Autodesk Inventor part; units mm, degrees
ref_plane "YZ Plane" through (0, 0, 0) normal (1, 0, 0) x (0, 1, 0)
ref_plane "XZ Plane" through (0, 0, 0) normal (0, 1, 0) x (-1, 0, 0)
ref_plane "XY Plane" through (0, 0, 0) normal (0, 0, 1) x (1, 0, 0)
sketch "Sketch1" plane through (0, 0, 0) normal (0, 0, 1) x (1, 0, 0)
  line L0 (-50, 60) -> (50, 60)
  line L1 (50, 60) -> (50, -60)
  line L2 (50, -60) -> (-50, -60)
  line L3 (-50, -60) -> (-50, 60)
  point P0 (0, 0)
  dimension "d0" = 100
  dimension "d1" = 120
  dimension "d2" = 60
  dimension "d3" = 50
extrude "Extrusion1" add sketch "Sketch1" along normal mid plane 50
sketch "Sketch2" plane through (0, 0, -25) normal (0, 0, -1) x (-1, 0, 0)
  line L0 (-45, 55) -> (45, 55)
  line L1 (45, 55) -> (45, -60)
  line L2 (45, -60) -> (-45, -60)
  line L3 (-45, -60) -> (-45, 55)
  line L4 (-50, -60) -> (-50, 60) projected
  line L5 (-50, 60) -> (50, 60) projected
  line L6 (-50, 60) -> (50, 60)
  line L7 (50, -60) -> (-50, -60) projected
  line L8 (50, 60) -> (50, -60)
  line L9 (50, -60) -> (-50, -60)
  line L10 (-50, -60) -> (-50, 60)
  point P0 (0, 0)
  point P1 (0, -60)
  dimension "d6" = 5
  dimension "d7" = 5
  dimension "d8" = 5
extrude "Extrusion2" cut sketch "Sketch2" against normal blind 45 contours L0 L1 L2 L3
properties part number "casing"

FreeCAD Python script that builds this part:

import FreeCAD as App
import Part
import Sketcher

V = App.Vector
Q = App.Units.Quantity

doc = App.newDocument("Part")
body = doc.addObject("PartDesign::Body", "Body")

sketch1 = doc.addObject("Sketcher::SketchObject", "Sketch")
body.addObject(sketch1)
sketch1.AttachmentSupport = (doc.XY_Plane, [""])
sketch1.MapMode = "FlatFace"
sketch1.addGeometry([
    Part.LineSegment(V(50, 60, 0), V(-50, 60, 0)),
    Part.LineSegment(V(-50, 60, 0), V(-50, -60, 0)),
    Part.LineSegment(V(-50, -60, 0), V(50, -60, 0)),
    Part.LineSegment(V(50, -60, 0), V(50, 60, 0)),
], False)
sketch1.addConstraint([
    Sketcher.Constraint("Coincident", 0, 2, 1, 1),
    Sketcher.Constraint("Coincident", 1, 2, 2, 1),
    Sketcher.Constraint("Coincident", 2, 2, 3, 1),
    Sketcher.Constraint("Coincident", 3, 2, 0, 1),
    Sketcher.Constraint("Horizontal", 0),
    Sketcher.Constraint("Vertical", 1),
    Sketcher.Constraint("Horizontal", 2),
    Sketcher.Constraint("Vertical", 3),
    Sketcher.Constraint("Symmetric", 0, 2, 2, 2, -1, 1),
    Sketcher.Constraint("DistanceX", 0, 2, 0, 1, Q("100 mm")),
    Sketcher.Constraint("DistanceY", 1, 2, 1, 1, Q("120 mm")),
])
pad1 = doc.addObject("PartDesign::Pad", "Pad")
body.addObject(pad1)
pad1.Profile = sketch1
pad1.Length = 50
pad1.Midplane = True

sketch2 = doc.addObject("Sketcher::SketchObject", "Sketch001")
body.addObject(sketch2)
sketch2.AttachmentSupport = (doc.XY_Plane, [""])
sketch2.MapMode = "FlatFace"
sketch2.AttachmentOffset = App.Placement(V(0, 0, -25), App.Rotation())
sketch2.addGeometry([
    Part.LineSegment(V(-45, 55, 0), V(45, 55, 0)),
    Part.LineSegment(V(45, 55, 0), V(45, -60, 0)),
    Part.LineSegment(V(45, -60, 0), V(-45, -60, 0)),
    Part.LineSegment(V(-45, -60, 0), V(-45, 55, 0)),
], False)
sketch2.addConstraint([
    Sketcher.Constraint("Coincident", 0, 2, 1, 1),
    Sketcher.Constraint("Coincident", 1, 2, 2, 1),
    Sketcher.Constraint("Coincident", 2, 2, 3, 1),
    Sketcher.Constraint("Coincident", 3, 2, 0, 1),
    Sketcher.Constraint("Horizontal", 0),
    Sketcher.Constraint("Vertical", 1),
    Sketcher.Constraint("Horizontal", 2),
    Sketcher.Constraint("Vertical", 3),
    Sketcher.Constraint("DistanceX", 0, 1, 0, 2, Q("90 mm")),
    Sketcher.Constraint("DistanceY", 1, 2, 1, 1, Q("115 mm")),
    Sketcher.Constraint("DistanceX", -1, 1, 0, 2, Q("45 mm")),
    Sketcher.Constraint("DistanceY", -1, 1, 0, 2, Q("55 mm")),
])
pocket1 = doc.addObject("PartDesign::Pocket", "Pocket")
body.addObject(pocket1)
pocket1.Profile = sketch2
pocket1.Length = 45
pocket1.Reversed = True

doc.recompute()
